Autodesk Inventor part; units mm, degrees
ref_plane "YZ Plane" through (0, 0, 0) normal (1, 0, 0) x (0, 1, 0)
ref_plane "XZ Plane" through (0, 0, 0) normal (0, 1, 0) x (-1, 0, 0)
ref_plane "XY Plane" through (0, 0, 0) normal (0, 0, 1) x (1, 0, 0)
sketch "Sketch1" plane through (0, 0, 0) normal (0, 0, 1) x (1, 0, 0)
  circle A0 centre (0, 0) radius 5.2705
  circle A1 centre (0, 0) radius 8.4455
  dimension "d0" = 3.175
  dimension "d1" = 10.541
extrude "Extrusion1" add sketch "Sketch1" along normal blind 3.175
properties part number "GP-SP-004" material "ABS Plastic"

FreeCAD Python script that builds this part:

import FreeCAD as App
import Part
import Sketcher

V = App.Vector
Q = App.Units.Quantity

doc = App.newDocument("Part")
body = doc.addObject("PartDesign::Body", "Body")

# Sketch on XY plane
sketch1 = body.newObject("Sketcher::SketchObject", "Sketch")
sketch1.AttachmentSupport = (doc.getObject("XY_Plane"), [""])
sketch1.MapMode = "FlatFace"
sketch1.addGeometry(Part.Circle(V(0, 0, 0), V(0, 0, 1), 8.4455), False)
sketch1.addGeometry(Part.Circle(V(0, 0, 0), V(0, 0, 1), 5.2705), False)
sketch1.addConstraint(Sketcher.Constraint("Coincident", 0, 3, -1, 1))
sketch1.addConstraint(Sketcher.Constraint("Coincident", 1, 3, -1, 1))
sketch1.addConstraint(Sketcher.Constraint("Diameter", 1, Q("0.415 in")))
sketch1.addConstraint(Sketcher.Constraint("Diameter", 0, Q("0.665 in")))
pad1 = body.newObject("PartDesign::Pad", "Pad")
pad1.Profile = sketch1
pad1.Length = Q("0.125 in")

doc.recompute()
